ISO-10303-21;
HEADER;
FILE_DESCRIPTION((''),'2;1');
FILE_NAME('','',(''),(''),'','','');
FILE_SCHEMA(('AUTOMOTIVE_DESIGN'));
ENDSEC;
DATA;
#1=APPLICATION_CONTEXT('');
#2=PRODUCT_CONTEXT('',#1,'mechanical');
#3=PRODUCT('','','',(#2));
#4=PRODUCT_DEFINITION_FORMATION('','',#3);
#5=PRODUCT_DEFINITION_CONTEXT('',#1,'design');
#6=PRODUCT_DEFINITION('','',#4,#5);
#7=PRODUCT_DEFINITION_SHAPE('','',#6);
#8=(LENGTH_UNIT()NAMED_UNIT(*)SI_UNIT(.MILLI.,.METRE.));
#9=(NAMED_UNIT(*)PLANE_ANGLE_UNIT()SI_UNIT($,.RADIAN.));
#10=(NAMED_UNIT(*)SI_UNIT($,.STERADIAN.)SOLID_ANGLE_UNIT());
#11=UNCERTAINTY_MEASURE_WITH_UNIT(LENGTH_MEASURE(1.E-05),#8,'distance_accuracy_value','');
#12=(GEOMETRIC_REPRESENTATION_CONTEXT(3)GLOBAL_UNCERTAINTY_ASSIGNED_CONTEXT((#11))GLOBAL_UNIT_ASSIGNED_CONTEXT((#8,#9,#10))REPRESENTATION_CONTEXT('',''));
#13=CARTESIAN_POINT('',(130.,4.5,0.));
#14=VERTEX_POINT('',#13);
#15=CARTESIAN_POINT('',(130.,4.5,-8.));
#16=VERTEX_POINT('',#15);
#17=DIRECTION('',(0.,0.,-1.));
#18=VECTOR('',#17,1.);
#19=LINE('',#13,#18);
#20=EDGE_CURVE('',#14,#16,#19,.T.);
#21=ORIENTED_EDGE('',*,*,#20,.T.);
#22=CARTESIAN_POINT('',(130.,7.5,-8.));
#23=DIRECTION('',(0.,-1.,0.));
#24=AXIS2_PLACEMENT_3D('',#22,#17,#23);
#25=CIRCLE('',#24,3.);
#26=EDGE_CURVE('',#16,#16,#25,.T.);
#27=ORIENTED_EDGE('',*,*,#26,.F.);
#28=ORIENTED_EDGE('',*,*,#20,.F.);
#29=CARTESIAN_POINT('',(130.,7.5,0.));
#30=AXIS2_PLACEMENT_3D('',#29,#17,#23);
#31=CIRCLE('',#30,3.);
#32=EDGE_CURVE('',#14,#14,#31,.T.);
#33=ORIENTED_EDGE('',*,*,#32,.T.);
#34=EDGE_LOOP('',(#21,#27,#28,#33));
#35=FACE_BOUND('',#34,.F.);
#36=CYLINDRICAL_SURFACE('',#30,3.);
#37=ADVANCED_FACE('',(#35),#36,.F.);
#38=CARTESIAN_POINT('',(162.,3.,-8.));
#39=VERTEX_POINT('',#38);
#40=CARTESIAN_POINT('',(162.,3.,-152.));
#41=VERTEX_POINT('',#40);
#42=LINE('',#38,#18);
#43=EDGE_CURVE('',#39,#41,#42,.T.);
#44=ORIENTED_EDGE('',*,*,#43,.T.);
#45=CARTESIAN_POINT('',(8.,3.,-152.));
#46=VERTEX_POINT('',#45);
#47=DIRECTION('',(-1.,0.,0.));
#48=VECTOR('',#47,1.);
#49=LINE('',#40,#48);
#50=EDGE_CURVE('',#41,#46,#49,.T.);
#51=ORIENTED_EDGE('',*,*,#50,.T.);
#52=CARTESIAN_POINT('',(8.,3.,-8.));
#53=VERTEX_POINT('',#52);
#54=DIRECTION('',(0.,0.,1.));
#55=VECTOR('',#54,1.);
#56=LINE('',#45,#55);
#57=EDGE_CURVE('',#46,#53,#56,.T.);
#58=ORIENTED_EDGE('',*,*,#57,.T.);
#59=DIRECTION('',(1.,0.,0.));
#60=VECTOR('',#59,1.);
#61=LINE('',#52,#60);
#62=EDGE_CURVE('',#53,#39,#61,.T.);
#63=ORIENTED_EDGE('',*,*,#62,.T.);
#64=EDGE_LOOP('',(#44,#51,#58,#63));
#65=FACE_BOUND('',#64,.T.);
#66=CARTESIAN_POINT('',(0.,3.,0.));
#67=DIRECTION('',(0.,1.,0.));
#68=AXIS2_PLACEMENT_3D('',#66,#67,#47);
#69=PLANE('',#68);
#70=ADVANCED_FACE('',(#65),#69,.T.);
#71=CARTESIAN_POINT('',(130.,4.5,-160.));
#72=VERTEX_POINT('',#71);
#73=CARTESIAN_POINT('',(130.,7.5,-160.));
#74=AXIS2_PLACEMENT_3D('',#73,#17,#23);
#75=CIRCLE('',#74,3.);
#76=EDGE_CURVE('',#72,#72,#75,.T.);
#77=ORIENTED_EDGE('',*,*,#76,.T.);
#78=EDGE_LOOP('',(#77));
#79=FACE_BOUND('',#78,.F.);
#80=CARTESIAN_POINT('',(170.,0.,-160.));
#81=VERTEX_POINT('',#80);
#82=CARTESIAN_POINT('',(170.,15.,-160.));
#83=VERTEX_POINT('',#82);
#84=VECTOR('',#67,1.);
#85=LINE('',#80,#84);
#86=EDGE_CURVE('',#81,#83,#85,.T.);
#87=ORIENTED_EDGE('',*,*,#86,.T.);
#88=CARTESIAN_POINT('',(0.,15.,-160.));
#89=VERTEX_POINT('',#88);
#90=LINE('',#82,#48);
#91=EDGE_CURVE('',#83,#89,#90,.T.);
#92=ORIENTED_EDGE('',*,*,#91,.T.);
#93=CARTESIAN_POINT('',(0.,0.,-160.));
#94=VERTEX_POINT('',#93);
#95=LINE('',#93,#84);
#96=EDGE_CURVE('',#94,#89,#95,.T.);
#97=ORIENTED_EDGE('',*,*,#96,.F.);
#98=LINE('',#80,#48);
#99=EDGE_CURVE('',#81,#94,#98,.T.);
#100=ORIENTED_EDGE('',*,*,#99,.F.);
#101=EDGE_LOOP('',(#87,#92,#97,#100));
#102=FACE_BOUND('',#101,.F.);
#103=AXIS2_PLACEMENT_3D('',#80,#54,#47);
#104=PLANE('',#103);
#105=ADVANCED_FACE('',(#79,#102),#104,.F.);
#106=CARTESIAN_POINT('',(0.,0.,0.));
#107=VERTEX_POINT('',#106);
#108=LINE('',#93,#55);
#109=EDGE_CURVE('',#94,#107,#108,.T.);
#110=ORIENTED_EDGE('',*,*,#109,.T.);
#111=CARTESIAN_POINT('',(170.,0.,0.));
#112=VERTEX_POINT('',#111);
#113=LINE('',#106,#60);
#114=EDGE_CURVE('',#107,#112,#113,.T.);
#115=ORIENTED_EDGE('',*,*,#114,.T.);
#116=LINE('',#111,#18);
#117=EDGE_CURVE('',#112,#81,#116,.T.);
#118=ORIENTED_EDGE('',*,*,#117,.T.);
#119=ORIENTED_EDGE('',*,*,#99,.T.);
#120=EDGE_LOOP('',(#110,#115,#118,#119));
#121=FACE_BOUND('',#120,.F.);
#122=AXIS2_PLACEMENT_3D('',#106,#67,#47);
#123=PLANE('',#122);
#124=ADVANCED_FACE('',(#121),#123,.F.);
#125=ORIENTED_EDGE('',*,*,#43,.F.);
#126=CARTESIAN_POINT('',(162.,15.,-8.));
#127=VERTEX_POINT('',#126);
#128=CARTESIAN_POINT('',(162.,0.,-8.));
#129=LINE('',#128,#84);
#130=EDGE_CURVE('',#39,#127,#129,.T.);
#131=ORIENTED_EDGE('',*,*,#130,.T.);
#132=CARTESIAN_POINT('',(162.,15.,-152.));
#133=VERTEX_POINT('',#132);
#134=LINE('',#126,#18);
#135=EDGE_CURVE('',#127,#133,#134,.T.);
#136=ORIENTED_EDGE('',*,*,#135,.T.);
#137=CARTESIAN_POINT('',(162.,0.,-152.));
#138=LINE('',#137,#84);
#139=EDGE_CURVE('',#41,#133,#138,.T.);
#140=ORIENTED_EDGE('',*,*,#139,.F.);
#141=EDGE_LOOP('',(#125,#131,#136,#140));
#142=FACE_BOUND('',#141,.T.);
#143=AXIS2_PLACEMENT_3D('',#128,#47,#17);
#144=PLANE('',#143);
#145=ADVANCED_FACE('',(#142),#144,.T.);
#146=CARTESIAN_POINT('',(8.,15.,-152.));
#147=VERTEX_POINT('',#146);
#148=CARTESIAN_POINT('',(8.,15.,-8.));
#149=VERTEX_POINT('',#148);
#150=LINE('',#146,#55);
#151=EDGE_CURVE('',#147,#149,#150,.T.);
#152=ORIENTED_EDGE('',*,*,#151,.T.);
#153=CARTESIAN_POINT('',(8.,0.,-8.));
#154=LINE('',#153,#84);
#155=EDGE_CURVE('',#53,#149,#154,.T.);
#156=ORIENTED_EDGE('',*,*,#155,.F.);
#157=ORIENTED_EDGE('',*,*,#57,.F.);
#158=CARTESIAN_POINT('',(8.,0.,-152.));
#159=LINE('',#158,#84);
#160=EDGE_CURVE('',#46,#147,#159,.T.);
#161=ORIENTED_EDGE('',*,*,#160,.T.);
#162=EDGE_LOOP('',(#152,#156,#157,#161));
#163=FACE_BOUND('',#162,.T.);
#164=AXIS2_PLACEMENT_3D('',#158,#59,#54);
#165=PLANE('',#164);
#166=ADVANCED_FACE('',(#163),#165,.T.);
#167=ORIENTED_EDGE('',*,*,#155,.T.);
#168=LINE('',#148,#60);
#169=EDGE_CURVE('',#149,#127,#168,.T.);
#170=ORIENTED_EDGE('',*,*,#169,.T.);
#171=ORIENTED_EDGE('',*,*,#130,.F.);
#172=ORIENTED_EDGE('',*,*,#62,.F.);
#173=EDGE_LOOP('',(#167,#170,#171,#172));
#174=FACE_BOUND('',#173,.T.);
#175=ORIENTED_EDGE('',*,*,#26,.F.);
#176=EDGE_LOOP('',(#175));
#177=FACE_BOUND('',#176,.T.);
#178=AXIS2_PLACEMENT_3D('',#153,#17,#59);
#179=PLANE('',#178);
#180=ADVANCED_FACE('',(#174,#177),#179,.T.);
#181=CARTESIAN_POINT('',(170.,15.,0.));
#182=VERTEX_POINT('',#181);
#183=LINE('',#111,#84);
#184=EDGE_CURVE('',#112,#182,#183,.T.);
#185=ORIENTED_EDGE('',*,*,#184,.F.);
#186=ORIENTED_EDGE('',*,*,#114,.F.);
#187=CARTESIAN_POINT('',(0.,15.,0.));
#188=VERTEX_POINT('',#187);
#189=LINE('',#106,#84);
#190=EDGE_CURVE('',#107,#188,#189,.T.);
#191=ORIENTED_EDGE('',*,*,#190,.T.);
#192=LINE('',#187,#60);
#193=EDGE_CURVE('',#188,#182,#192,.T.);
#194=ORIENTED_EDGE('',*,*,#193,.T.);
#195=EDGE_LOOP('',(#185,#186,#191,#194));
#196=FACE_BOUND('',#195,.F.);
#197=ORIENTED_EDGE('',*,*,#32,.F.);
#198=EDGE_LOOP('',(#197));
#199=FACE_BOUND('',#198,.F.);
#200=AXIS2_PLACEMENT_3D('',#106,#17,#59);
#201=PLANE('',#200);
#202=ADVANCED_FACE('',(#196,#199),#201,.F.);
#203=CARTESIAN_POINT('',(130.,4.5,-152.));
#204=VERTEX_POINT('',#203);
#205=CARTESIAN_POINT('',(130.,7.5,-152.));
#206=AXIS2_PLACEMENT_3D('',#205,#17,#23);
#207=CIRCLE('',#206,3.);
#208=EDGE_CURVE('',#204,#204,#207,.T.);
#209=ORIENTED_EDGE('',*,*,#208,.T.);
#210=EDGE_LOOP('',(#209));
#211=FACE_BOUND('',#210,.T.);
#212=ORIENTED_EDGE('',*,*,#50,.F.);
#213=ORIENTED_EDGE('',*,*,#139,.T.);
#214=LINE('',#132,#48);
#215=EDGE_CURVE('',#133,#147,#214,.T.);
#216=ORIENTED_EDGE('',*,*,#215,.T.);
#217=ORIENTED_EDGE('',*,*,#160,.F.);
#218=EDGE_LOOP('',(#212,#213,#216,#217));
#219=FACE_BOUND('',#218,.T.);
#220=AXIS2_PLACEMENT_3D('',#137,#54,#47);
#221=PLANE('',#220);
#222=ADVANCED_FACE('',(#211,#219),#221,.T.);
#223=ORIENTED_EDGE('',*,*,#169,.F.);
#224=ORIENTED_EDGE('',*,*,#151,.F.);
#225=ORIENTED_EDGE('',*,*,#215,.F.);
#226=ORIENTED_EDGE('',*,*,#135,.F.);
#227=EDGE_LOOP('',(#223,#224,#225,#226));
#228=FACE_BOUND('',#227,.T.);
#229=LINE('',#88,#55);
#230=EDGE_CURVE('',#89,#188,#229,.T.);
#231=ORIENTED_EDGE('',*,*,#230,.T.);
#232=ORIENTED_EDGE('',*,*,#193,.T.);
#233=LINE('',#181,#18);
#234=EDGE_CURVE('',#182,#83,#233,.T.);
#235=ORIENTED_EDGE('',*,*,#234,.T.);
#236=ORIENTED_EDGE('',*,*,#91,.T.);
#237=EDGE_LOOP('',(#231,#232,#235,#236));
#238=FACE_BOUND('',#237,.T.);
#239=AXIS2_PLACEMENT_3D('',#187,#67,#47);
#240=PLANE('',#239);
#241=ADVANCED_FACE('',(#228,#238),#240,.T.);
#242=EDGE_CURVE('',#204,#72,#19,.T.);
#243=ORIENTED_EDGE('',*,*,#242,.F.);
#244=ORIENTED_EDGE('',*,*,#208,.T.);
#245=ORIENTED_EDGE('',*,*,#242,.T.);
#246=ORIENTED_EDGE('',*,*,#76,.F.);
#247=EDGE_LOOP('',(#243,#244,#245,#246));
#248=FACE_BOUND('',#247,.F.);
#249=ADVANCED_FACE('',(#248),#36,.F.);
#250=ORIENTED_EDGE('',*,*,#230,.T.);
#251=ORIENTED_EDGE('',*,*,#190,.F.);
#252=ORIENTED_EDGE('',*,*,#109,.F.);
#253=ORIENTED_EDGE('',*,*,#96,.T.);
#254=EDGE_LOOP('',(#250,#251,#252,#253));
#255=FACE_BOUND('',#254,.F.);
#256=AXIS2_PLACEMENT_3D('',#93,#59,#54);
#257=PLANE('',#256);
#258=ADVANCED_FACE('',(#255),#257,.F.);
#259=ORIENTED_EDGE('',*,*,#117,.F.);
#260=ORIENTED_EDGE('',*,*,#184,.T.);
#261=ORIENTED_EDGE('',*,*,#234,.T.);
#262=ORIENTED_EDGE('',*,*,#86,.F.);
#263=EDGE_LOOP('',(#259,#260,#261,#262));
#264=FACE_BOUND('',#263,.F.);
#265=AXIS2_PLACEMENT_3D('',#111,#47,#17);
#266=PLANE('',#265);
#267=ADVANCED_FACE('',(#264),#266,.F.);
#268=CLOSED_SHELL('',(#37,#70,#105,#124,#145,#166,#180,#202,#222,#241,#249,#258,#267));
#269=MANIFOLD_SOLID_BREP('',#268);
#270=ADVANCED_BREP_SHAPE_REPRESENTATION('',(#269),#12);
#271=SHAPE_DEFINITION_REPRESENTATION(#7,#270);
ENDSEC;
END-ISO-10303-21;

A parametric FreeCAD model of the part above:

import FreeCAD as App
import Part
import Sketcher

V = App.Vector


def add_polygon(sketch, points):
    """Adds a closed chain of lines whose ends are joined by coincident constraints."""
    first, n = sketch.GeometryCount, len(points)
    for a, b in zip(points, points[1:] + points[:1]):
        sketch.addGeometry(Part.LineSegment(App.Vector(*a, 0), App.Vector(*b, 0)), False)
    for i in range(n):
        sketch.addConstraint(Sketcher.Constraint("Coincident", first + i, 2, first + (i + 1) % n, 1))

doc = App.newDocument("Part")
body = doc.addObject("PartDesign::Body", "Body")

# Sketch on XZ plane
sketch1 = doc.addObject("Sketcher::SketchObject", "Sketch")
body.addObject(sketch1)
sketch1.AttachmentSupport = (doc.XZ_Plane, [""])
sketch1.MapMode = "FlatFace"
add_polygon(sketch1, [(0, -160), (0, 0), (170, 0), (170, -160)])  # lines 0-3
add_polygon(sketch1, [(162, -8), (8, -8), (8, -152), (162, -152)])  # lines 4-7
sketch1.addConstraint(Sketcher.Constraint("Vertical", 0))
sketch1.addConstraint(Sketcher.Constraint("Horizontal", 1))
sketch1.addConstraint(Sketcher.Constraint("Vertical", 2))
sketch1.addConstraint(Sketcher.Constraint("Horizontal", 3))
sketch1.addConstraint(Sketcher.Constraint("Horizontal", 4))
sketch1.addConstraint(Sketcher.Constraint("Vertical", 5))
sketch1.addConstraint(Sketcher.Constraint("Horizontal", 6))
sketch1.addConstraint(Sketcher.Constraint("Vertical", 7))
sketch1.addConstraint(Sketcher.Constraint("Coincident", 0, 2, -1, 1))
sketch1.addConstraint(Sketcher.Constraint("DistanceX", 1, 1, 1, 2, 170.0))
sketch1.addConstraint(Sketcher.Constraint("DistanceX", 4, 2, 4, 1, 154.0))
sketch1.addConstraint(Sketcher.Constraint("DistanceY", 0, 1, 0, 2, 160.0))
sketch1.addConstraint(Sketcher.Constraint("DistanceY", 5, 2, 5, 1, 144.0))
sketch1.addConstraint(Sketcher.Constraint("DistanceX", -1, 1, 4, 2, 8.0))
sketch1.addConstraint(Sketcher.Constraint("DistanceY", 4, 2, -1, 1, 8.0))
pad1 = doc.addObject("PartDesign::Pad", "Pad")
body.addObject(pad1)
pad1.Profile = sketch1
pad1.Length = 15
pad1.Reversed = True

# Sketch on XZ plane
sketch2 = doc.addObject("Sketcher::SketchObject", "Sketch001")
body.addObject(sketch2)
sketch2.AttachmentSupport = (doc.XZ_Plane, [""])
sketch2.MapMode = "FlatFace"
add_polygon(sketch2, [(8, -152), (8, -8), (162, -8), (162, -152)])  # lines 0-3
sketch2.addConstraint(Sketcher.Constraint("Vertical", 0))
sketch2.addConstraint(Sketcher.Constraint("Horizontal", 1))
sketch2.addConstraint(Sketcher.Constraint("Vertical", 2))
sketch2.addConstraint(Sketcher.Constraint("Horizontal", 3))
sketch2.addConstraint(Sketcher.Constraint("DistanceX", 1, 1, 1, 2, 154.0))
sketch2.addConstraint(Sketcher.Constraint("DistanceY", 0, 1, 0, 2, 144.0))
sketch2.addConstraint(Sketcher.Constraint("DistanceX", -1, 1, 0, 2, 8.0))
sketch2.addConstraint(Sketcher.Constraint("DistanceY", 0, 2, -1, 1, 8.0))
pad2 = doc.addObject("PartDesign::Pad", "Pad001")
body.addObject(pad2)
pad2.Profile = sketch2
pad2.Length = 3
pad2.Reversed = True

# Sketch on XY plane
sketch3 = doc.addObject("Sketcher::SketchObject", "Sketch002")
body.addObject(sketch3)
sketch3.AttachmentSupport = (doc.XY_Plane, [""])
sketch3.MapMode = "FlatFace"
sketch3.addGeometry(Part.Circle(V(130, 7.5, 0), V(0, 0, 1), 3), False)
sketch3.addConstraint(Sketcher.Constraint("Diameter", 0, 6.0))
sketch3.addConstraint(Sketcher.Constraint("DistanceX", -1, 1, 0, 3, 130.0))
sketch3.addConstraint(Sketcher.Constraint("DistanceY", -1, 1, 0, 3, 7.5))
doc.recompute()
hole = doc.addObject("PartDesign::Hole", "Hole")
body.addObject(hole)
hole.Profile = sketch3
hole.ThreadType = "None"
hole.Diameter = 6
hole.DepthType = "Dimension"
hole.Depth = 160
hole.DrillPoint = "Flat"

doc.recompute()
